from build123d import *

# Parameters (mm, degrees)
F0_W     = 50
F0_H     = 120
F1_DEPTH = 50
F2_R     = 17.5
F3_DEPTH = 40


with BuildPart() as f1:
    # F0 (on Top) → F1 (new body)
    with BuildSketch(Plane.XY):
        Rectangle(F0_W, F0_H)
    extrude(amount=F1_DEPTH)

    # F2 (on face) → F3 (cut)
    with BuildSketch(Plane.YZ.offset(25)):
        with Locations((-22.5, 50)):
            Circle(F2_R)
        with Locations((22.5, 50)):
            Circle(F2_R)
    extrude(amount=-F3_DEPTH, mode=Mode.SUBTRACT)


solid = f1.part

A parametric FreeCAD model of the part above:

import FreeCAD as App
import Part
import Sketcher
from FreeCAD import Vector
Q = App.Units.Quantity


def add_polygon(sketch, points):
    """Adds a closed chain of lines whose ends are joined by coincident constraints."""
    first, n = sketch.GeometryCount, len(points)
    for a, b in zip(points, points[1:] + points[:1]):
        sketch.addGeometry(Part.LineSegment(App.Vector(*a, 0), App.Vector(*b, 0)), False)
    for i in range(n):
        sketch.addConstraint(Sketcher.Constraint("Coincident", first + i, 2, first + (i + 1) % n, 1))

doc = App.newDocument("Part")
params = doc.addObject("Spreadsheet::Sheet", "Params")
for row, (alias, value) in enumerate([
    ("sketch1_width", "50 mm"),
    ("sketch1_height", "120 mm"),
    ("pad1_length", "50 mm"),
    ("sketch2_diameter", "35 mm"),
    ("pocket1_length", "40 mm"),
], start=1):
    params.set(f"A{row}", alias)
    params.set(f"B{row}", "=" + value)
    params.setAlias(f"B{row}", alias)

body = doc.addObject("PartDesign::Body", "Body")

sketch1 = body.newObject("Sketcher::SketchObject", "Sketch")
sketch1.AttachmentSupport = (doc.getObject("XY_Plane"), [""])
sketch1.MapMode = "FlatFace"
add_polygon(sketch1, [(-25, 60), (-25, -60), (25, -60), (25, 60)])
sketch1.addConstraint([
    Sketcher.Constraint("Vertical", 0),
    Sketcher.Constraint("Horizontal", 1),
    Sketcher.Constraint("Vertical", 2),
    Sketcher.Constraint("Horizontal", 3),
    Sketcher.Constraint("Symmetric", 0, 2, 2, 2, -1, 1),
    Sketcher.Constraint("DistanceX", 1, 1, 1, 2, Q("50 mm")),
    Sketcher.Constraint("DistanceY", 0, 2, 0, 1, Q("120 mm")),
])
sketch1.setExpression("Constraints[9]", "Params.sketch1_width")
sketch1.setExpression("Constraints[10]", "Params.sketch1_height")
pad1 = body.newObject("PartDesign::Pad", "Pad")
pad1.Profile = sketch1
pad1.setExpression("Length", "Params.pad1_length")

sketch2 = body.newObject("Sketcher::SketchObject", "Sketch001")
sketch2.AttachmentSupport = (doc.getObject("YZ_Plane"), [""])
sketch2.MapMode = "FlatFace"
sketch2.AttachmentOffset = App.Placement(Vector(0, 0, 25), App.Rotation())
sketch2.addGeometry([
    Part.Circle(Vector(-22, 50, 0), Vector(0, 0, 1), 18),
    Part.Circle(Vector(22, 50, 0), Vector(0, 0, 1), 18),
], False)
sketch2.addConstraint([
    Sketcher.Constraint("Equal", 0, 1),
    Sketcher.Constraint("Symmetric", 0, 3, 1, 3, -2),
    Sketcher.Constraint("Diameter", 0, Q("35 mm")),
    Sketcher.Constraint("DistanceY", -1, 1, 0, 3, Q("50 mm")),
    Sketcher.Constraint("DistanceX", 0, 3, 1, 3, Q("45 mm")),
])
sketch2.setExpression("Constraints[2]", "Params.sketch2_diameter")
pocket1 = body.newObject("PartDesign::Pocket", "Pocket")
pocket1.Profile = sketch2
pocket1.setExpression("Length", "Params.pocket1_length")

doc.recompute()
